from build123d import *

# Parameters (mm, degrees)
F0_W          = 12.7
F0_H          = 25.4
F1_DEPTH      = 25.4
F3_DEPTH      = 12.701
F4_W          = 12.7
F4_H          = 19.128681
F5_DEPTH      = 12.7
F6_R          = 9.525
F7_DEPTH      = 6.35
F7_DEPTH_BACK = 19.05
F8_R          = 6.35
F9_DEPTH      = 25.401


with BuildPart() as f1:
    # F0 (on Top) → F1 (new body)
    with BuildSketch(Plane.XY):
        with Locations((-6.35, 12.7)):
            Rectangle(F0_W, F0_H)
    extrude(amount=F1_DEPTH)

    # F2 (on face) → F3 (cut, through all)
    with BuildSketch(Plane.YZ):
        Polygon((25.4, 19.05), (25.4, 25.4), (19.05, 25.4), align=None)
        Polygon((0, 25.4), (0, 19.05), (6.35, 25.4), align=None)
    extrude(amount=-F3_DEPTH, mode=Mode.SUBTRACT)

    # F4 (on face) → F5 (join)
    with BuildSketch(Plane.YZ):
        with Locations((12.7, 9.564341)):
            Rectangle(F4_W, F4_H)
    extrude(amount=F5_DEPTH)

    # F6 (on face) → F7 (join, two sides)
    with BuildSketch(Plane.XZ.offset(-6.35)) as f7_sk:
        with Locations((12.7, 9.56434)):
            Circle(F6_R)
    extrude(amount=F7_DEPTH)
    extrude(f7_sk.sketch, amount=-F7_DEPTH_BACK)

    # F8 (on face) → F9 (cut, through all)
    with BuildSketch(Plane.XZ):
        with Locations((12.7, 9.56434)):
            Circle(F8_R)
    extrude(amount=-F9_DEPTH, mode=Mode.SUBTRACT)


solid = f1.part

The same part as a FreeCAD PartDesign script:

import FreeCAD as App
import Part
import Sketcher
Q = App.Units.Quantity


def add_polygon(sketch, points):
    """Adds a closed chain of lines whose ends are joined by coincident constraints."""
    first, n = sketch.GeometryCount, len(points)
    for a, b in zip(points, points[1:] + points[:1]):
        sketch.addGeometry(Part.LineSegment(App.Vector(*a, 0), App.Vector(*b, 0)), False)
    for i in range(n):
        sketch.addConstraint(Sketcher.Constraint("Coincident", first + i, 2, first + (i + 1) % n, 1))

doc = App.newDocument("Part")
body = doc.addObject("PartDesign::Body", "Body")

# Sketch on XY plane
sketch1 = body.newObject("Sketcher::SketchObject", "Sketch")
sketch1.AttachmentSupport = (doc.getObject("XY_Plane"), [""])
sketch1.MapMode = "FlatFace"
add_polygon(sketch1, [(-13, 25), (-13, 0), (0, 0), (0, 25)])  # lines 0-3
sketch1.addConstraint([
    Sketcher.Constraint("Vertical", 0),
    Sketcher.Constraint("Horizontal", 1),
    Sketcher.Constraint("Vertical", 2),
    Sketcher.Constraint("Horizontal", 3),
    Sketcher.Constraint("Coincident", 1, 2, -1, 1),
    Sketcher.Constraint("DistanceY", 0, 2, 0, 1, Q("1 in")),
    Sketcher.Constraint("DistanceX", 1, 1, 1, 2, Q("0.5 in")),
])
pad1 = body.newObject("PartDesign::Pad", "Pad")
pad1.Profile = sketch1
pad1.Length = Q("1 in")

# Sketch on YZ plane
sketch2 = body.newObject("Sketcher::SketchObject", "Sketch001")
sketch2.AttachmentSupport = (doc.getObject("YZ_Plane"), [""])
sketch2.MapMode = "FlatFace"
add_polygon(sketch2, [(25, 19), (25, 25), (19, 25)])  # lines 0-2
add_polygon(sketch2, [(0, 25), (0, 19), (6, 25)])  # lines 3-5
sketch2.addConstraint([
    Sketcher.Constraint("Vertical", 0),
    Sketcher.Constraint("Horizontal", 1),
    Sketcher.Constraint("Vertical", 3),
    Sketcher.Constraint("Horizontal", 5),
    Sketcher.Constraint("PointOnObject", 3, 2, -2),
    Sketcher.Constraint("Perpendicular", 2, 4),
    Sketcher.Constraint("Horizontal", 2, 2, 3, 2),
    Sketcher.Constraint("Horizontal", 1, 2, 4, 2),
    Sketcher.Constraint("Equal", 1, 5),
    Sketcher.Constraint("DistanceX", -1, 1, 0, 2, Q("1 in")),
    Sketcher.Constraint("DistanceY", -1, 1, 0, 2, Q("1 in")),
    Sketcher.Constraint("DistanceX", 1, 2, 1, 1, Q("0.25 in")),
])
pocket1 = body.newObject("PartDesign::Pocket", "Pocket")
pocket1.Profile = sketch2
pocket1.Type = "ThroughAll"

# Sketch on YZ plane
sketch3 = body.newObject("Sketcher::SketchObject", "Sketch002")
sketch3.AttachmentSupport = (doc.getObject("YZ_Plane"), [""])
sketch3.MapMode = "FlatFace"
add_polygon(sketch3, [(6, 19), (6, 0), (19, 0), (19, 19)])  # lines 0-3
sketch3.addConstraint([
    Sketcher.Constraint("Vertical", 0),
    Sketcher.Constraint("Horizontal", 1),
    Sketcher.Constraint("Vertical", 2),
    Sketcher.Constraint("Horizontal", 3),
    Sketcher.Constraint("PointOnObject", 0, 2, -1),
    Sketcher.Constraint("DistanceX", 1, 1, 1, 2, Q("0.5 in")),
    Sketcher.Constraint("DistanceX", -1, 1, 0, 2, Q("0.25 in")),
    Sketcher.Constraint("DistanceY", 0, 2, 0, 1, 19.128681),
])
pad2 = body.newObject("PartDesign::Pad", "Pad001")
pad2.Profile = sketch3
pad2.Length = Q("0.5 in")

# Sketch on XZ plane
sketch4 = body.newObject("Sketcher::SketchObject", "Sketch003")
sketch4.AttachmentSupport = (doc.getObject("XZ_Plane"), [""])
sketch4.MapMode = "FlatFace"
sketch4.AttachmentOffset = App.Placement(App.Vector(0, 0, -0.25 * 25.4), App.Rotation())
sketch4.addGeometry(Part.Circle(App.Vector(13, 10, 0), App.Vector(0, 0, 1), 10), False)
sketch4.addConstraint([
    Sketcher.Constraint("Diameter", 0, Q("0.75 in")),
    Sketcher.Constraint("DistanceX", -1, 1, 0, 3, Q("0.5 in")),
    Sketcher.Constraint("DistanceY", -1, 1, 0, 3, 9.56434),
])
pad3 = body.newObject("PartDesign::Pad", "Pad002")
pad3.Profile = sketch4
pad3.Type = "TwoLengths"
pad3.Length = Q("0.25 in")
pad3.Length2 = Q("0.75 in")

# Sketch on XZ plane
sketch5 = body.newObject("Sketcher::SketchObject", "Sketch004")
sketch5.AttachmentSupport = (doc.getObject("XZ_Plane"), [""])
sketch5.MapMode = "FlatFace"
sketch5.addGeometry(Part.Circle(App.Vector(13, 10, 0), App.Vector(0, 0, 1), 6), False)
sketch5.addConstraint([
    Sketcher.Constraint("Diameter", 0, Q("0.5 in")),
    Sketcher.Constraint("DistanceX", -1, 1, 0, 3, Q("0.5 in")),
    Sketcher.Constraint("DistanceY", -1, 1, 0, 3, 9.56434),
])
pocket2 = body.newObject("PartDesign::Pocket", "Pocket001")
pocket2.Profile = sketch5
pocket2.Type = "ThroughAll"

doc.recompute()
